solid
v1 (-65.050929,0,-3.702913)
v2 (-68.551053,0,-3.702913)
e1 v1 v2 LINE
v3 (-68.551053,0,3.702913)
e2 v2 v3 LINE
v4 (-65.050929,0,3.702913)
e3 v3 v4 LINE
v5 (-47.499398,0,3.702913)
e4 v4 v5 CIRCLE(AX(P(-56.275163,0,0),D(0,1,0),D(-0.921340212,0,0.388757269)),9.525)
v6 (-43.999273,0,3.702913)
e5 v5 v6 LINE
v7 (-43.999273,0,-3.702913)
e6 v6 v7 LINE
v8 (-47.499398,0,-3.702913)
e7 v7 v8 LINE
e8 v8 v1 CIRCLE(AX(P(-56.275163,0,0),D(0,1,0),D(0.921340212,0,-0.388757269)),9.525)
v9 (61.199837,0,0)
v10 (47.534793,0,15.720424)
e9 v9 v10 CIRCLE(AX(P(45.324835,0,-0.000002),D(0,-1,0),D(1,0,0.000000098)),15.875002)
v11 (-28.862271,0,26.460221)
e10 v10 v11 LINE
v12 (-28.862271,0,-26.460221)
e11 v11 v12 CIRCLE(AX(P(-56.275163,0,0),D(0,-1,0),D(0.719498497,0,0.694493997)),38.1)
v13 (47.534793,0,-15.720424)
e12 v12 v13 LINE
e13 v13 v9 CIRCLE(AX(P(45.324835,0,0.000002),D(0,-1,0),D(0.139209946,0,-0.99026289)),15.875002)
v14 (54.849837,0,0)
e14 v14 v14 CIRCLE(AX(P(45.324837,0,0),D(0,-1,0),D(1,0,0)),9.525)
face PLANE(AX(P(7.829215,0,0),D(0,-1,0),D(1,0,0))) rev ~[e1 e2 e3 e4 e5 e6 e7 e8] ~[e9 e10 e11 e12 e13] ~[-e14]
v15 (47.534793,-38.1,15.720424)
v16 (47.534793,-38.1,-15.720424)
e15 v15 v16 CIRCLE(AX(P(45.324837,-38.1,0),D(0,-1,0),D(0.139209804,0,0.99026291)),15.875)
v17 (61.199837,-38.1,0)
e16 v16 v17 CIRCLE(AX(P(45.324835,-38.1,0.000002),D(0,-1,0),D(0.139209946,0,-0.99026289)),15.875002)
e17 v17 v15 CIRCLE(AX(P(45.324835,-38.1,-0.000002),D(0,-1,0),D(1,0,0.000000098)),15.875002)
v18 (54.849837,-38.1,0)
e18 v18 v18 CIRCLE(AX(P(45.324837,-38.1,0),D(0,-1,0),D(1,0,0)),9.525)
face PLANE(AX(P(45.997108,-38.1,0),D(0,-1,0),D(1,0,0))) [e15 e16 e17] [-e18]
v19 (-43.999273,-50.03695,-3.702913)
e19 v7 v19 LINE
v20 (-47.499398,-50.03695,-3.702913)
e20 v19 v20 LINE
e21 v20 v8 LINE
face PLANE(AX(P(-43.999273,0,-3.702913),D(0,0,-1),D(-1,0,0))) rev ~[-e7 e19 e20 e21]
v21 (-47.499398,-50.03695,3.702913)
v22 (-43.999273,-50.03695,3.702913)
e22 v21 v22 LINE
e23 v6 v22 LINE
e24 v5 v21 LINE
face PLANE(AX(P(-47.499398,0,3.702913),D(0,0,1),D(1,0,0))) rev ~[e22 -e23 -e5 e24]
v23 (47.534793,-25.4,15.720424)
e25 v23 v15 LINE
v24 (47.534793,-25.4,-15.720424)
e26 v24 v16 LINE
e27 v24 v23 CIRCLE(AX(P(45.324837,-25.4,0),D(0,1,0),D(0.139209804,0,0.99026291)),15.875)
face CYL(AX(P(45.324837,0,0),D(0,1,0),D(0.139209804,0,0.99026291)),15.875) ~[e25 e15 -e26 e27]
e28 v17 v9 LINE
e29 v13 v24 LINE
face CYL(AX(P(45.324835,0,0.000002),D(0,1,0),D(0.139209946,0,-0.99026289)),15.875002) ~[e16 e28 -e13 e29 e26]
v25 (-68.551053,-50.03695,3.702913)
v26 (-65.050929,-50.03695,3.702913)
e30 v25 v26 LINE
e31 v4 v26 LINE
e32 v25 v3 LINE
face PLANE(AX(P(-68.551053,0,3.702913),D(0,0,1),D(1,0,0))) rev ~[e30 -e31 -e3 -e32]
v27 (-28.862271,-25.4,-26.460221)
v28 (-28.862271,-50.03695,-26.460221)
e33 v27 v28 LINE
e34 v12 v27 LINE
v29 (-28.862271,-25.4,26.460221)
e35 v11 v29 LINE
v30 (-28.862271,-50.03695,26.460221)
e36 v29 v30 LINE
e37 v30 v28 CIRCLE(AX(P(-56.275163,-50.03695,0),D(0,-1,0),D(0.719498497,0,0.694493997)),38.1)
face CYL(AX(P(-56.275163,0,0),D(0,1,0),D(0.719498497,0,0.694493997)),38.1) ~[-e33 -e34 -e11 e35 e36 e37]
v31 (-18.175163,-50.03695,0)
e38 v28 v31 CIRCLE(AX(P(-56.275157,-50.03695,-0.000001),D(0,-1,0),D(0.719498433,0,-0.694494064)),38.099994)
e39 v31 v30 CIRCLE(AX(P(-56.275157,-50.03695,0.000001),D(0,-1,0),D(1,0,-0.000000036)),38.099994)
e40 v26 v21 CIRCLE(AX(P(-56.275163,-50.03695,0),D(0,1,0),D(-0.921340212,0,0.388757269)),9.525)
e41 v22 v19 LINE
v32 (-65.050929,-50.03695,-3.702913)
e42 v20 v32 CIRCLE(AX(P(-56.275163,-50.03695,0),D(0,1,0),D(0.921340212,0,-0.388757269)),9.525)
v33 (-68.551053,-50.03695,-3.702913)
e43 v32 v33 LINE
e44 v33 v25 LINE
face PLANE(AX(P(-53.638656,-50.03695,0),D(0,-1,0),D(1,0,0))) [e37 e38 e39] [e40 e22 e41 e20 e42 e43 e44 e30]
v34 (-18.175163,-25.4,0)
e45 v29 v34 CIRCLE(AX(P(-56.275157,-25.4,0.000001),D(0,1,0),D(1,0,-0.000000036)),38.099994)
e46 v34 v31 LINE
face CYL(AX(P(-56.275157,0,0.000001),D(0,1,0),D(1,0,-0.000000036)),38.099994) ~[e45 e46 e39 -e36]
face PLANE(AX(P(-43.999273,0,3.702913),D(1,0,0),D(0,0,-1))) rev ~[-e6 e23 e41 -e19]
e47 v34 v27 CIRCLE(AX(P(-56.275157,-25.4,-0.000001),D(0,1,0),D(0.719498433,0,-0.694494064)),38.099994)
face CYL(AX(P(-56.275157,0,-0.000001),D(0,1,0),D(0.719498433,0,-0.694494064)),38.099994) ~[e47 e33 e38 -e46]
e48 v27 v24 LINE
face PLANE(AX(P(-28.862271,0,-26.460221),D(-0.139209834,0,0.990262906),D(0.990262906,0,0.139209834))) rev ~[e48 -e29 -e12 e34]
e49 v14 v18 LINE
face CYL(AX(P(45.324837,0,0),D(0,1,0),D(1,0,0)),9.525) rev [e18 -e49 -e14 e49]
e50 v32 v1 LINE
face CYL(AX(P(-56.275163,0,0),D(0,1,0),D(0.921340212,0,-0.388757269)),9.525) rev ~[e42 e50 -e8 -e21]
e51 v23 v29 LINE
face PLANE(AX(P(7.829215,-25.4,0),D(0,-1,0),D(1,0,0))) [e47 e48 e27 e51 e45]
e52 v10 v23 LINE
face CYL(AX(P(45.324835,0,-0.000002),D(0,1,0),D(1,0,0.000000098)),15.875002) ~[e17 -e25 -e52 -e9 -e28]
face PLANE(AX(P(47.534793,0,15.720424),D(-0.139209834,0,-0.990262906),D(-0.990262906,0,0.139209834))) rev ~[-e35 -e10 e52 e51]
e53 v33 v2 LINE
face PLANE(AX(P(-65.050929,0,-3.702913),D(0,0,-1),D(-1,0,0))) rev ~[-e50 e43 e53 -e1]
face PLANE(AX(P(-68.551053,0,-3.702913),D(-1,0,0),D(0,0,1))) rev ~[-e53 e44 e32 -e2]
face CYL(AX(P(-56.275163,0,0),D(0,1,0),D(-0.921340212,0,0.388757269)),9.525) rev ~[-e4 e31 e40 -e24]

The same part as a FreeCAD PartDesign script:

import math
import FreeCAD as App
import Part
import Sketcher
from FreeCAD import Vector
Q = App.Units.Quantity

doc = App.newDocument("Part")
params = doc.addObject("Spreadsheet::Sheet", "Params")
for row, (alias, value) in enumerate([
    ("sketch1_radius", "1.5 in"),
    ("sketch1_diameter", "0.75 in"),
    ("sketch1_radius2", "0.6250001 in"),
    ("pad1_length", "1 in"),
    ("sketch2_radius", "1.5 in"),
    ("sketch2_radius2", "0.375 in"),
    ("pad2_length", "50.03695 mm"),
    ("sketch3_diameter", "0.75 in"),
    ("sketch3_radius", "0.6250001 in"),
    ("pad3_length", "1.5 in"),
], start=1):
    params.set(f"A{row}", alias)
    params.set(f"B{row}", "=" + value)
    params.setAlias(f"B{row}", alias)

body = doc.addObject("PartDesign::Body", "Body")

# Sketch on XZ plane
sketch1 = body.newObject("Sketcher::SketchObject", "Sketch")
sketch1.AttachmentSupport = (doc.getObject("XZ_Plane"), [""])
sketch1.MapMode = "FlatFace"
sketch1.addGeometry([
    Part.LineSegment(Vector(47.5, 15.7, 0), Vector(-28.9, 26.5, 0)),  # 0
    Part.ArcOfCircle(Part.Circle(Vector(-56.3, 0, 0), Vector(0, 0, 1), 38.1), math.radians(44), math.radians(316)),  # 1
    Part.LineSegment(Vector(-28.9, -26.5, 0), Vector(47.5, -15.7, 0)),  # 2
    Part.ArcOfCircle(Part.Circle(Vector(45.3, 0, 0), Vector(0, 0, 1), 15.9), math.radians(-82), math.radians(0)),  # 3
    Part.ArcOfCircle(Part.Circle(Vector(45.3, 0, 0), Vector(0, 0, 1), 15.9), math.radians(0), math.radians(82)),  # 4
    Part.LineSegment(Vector(-68.6, 3.7, 0), Vector(-65.1, 3.7, 0)),  # 5
    Part.ArcOfCircle(Part.Circle(Vector(-56.3, 0, 0), Vector(0, 0, 1), 9.5), math.radians(23), math.radians(157)),  # 6
    Part.LineSegment(Vector(-47.5, 3.7, 0), Vector(-44, 3.7, 0)),  # 7
    Part.LineSegment(Vector(-44, 3.7, 0), Vector(-44, -3.7, 0)),  # 8
    Part.LineSegment(Vector(-44, -3.7, 0), Vector(-47.5, -3.7, 0)),  # 9
    Part.ArcOfCircle(Part.Circle(Vector(-56.3, 0, 0), Vector(0, 0, 1), 9.5), math.radians(-157), math.radians(-23)),  # 10
    Part.LineSegment(Vector(-65.1, -3.7, 0), Vector(-68.6, -3.7, 0)),  # 11
    Part.LineSegment(Vector(-68.6, -3.7, 0), Vector(-68.6, 3.7, 0)),  # 12
    Part.Circle(Vector(45.3, 0, 0), Vector(0, 0, 1), 9.5),  # 13
], False)
sketch1.addConstraint([
    Sketcher.Constraint("Coincident", 0, 2, 1, 1),
    Sketcher.Constraint("Coincident", 1, 2, 2, 1),
    Sketcher.Constraint("Tangent", 2, 2, 3, 1),
    Sketcher.Constraint("Tangent", 3, 2, 4, 1),
    Sketcher.Constraint("Tangent", 4, 2, 0, 1),
    Sketcher.Constraint("Coincident", 5, 2, 6, 2),
    Sketcher.Constraint("Coincident", 6, 1, 7, 1),
    Sketcher.Constraint("Coincident", 7, 2, 8, 1),
    Sketcher.Constraint("Coincident", 8, 2, 9, 1),
    Sketcher.Constraint("Coincident", 9, 2, 10, 2),
    Sketcher.Constraint("Coincident", 10, 1, 11, 1),
    Sketcher.Constraint("Coincident", 11, 2, 12, 1),
    Sketcher.Constraint("Coincident", 12, 2, 5, 1),
    Sketcher.Constraint("Horizontal", 5),
    Sketcher.Constraint("Horizontal", 7),
    Sketcher.Constraint("Vertical", 8),
    Sketcher.Constraint("Horizontal", 9),
    Sketcher.Constraint("Horizontal", 11),
    Sketcher.Constraint("Vertical", 12),
    Sketcher.Constraint("Coincident", 6, 3, 1, 3),
    Sketcher.Constraint("Coincident", 10, 3, 1, 3),
    Sketcher.Constraint("Coincident", 13, 3, 3, 3),
    Sketcher.Constraint("Equal", 3, 4),
    Sketcher.Constraint("Equal", 6, 10),
    Sketcher.Constraint("Equal", 10, 13),
    Sketcher.Constraint("Symmetric", 0, 2, 1, 2, -1),
    Sketcher.Constraint("PointOnObject", 3, 3, -1),
    Sketcher.Constraint("PointOnObject", 3, 2, -1),
    Sketcher.Constraint("Horizontal", 5, 2, 6, 1),
    Sketcher.Constraint("Horizontal", 9, 2, 10, 1),
    Sketcher.Constraint("Vertical", 6, 1, 9, 2),
    Sketcher.Constraint("Equal", 5, 7),
    Sketcher.Constraint("Radius", 1, Q("1.5 in")),
    Sketcher.Constraint("Diameter", 13, Q("0.75 in")),
    Sketcher.Constraint("Radius", 3, Q("0.6250001 in")),
    Sketcher.Constraint("DistanceX", 1, 3, 3, 3, Q("3.9999999 in")),
    Sketcher.Constraint("DistanceX", 5, 1, 5, 2, Q("0.1378002 in")),
    Sketcher.Constraint("DistanceY", 8, 2, 8, 1, Q("7.405826 mm")),
    Sketcher.Constraint("DistanceX", 0, 2, -1, 1, Q("28.862271 mm")),
    Sketcher.Constraint("DistanceY", -1, 1, 0, 2, Q("26.460221 mm")),
])
sketch1.setExpression("Constraints[32]", "Params.sketch1_radius")
sketch1.setExpression("Constraints[33]", "Params.sketch1_diameter")
sketch1.setExpression("Constraints[34]", "Params.sketch1_radius2")
pad1 = body.newObject("PartDesign::Pad", "Pad")
pad1.Profile = sketch1
pad1.setExpression("Length", "Params.pad1_length")

# Sketch on XZ plane
sketch2 = body.newObject("Sketcher::SketchObject", "Sketch001")
sketch2.AttachmentSupport = (doc.getObject("XZ_Plane"), [""])
sketch2.MapMode = "FlatFace"
sketch2.addGeometry([
    Part.ArcOfCircle(Part.Circle(Vector(-56.3, 0, 0), Vector(0, 0, 1), 38.1), math.radians(-44), math.radians(0)),  # 0
    Part.ArcOfCircle(Part.Circle(Vector(-56.3, 0, 0), Vector(0, 0, 1), 38.1), math.radians(0), math.radians(44)),  # 1
    Part.ArcOfCircle(Part.Circle(Vector(-56.3, 0, 0), Vector(0, 0, 1), 38.1), math.radians(44), math.radians(316)),  # 2
    Part.LineSegment(Vector(-68.6, 3.7, 0), Vector(-65.1, 3.7, 0)),  # 3
    Part.ArcOfCircle(Part.Circle(Vector(-56.3, 0, 0), Vector(0, 0, 1), 9.5), math.radians(23), math.radians(157)),  # 4
    Part.LineSegment(Vector(-47.5, 3.7, 0), Vector(-44, 3.7, 0)),  # 5
    Part.LineSegment(Vector(-44, 3.7, 0), Vector(-44, -3.7, 0)),  # 6
    Part.LineSegment(Vector(-44, -3.7, 0), Vector(-47.5, -3.7, 0)),  # 7
    Part.ArcOfCircle(Part.Circle(Vector(-56.3, 0, 0), Vector(0, 0, 1), 9.5), math.radians(-157), math.radians(-23)),  # 8
    Part.LineSegment(Vector(-65.1, -3.7, 0), Vector(-68.6, -3.7, 0)),  # 9
    Part.LineSegment(Vector(-68.6, -3.7, 0), Vector(-68.6, 3.7, 0)),  # 10
], False)
sketch2.addConstraint([
    Sketcher.Constraint("Tangent", 0, 2, 1, 1),
    Sketcher.Constraint("Tangent", 1, 2, 2, 1),
    Sketcher.Constraint("Tangent", 2, 2, 0, 1),
    Sketcher.Constraint("Coincident", 3, 2, 4, 2),
    Sketcher.Constraint("Coincident", 4, 1, 5, 1),
    Sketcher.Constraint("Coincident", 5, 2, 6, 1),
    Sketcher.Constraint("Coincident", 6, 2, 7, 1),
    Sketcher.Constraint("Coincident", 7, 2, 8, 2),
    Sketcher.Constraint("Coincident", 8, 1, 9, 1),
    Sketcher.Constraint("Coincident", 9, 2, 10, 1),
    Sketcher.Constraint("Coincident", 10, 2, 3, 1),
    Sketcher.Constraint("Horizontal", 3),
    Sketcher.Constraint("Horizontal", 5),
    Sketcher.Constraint("Vertical", 6),
    Sketcher.Constraint("Horizontal", 7),
    Sketcher.Constraint("Horizontal", 9),
    Sketcher.Constraint("Vertical", 10),
    Sketcher.Constraint("Coincident", 4, 3, 0, 3),
    Sketcher.Constraint("Coincident", 8, 3, 0, 3),
    Sketcher.Constraint("Equal", 4, 8),
    Sketcher.Constraint("Symmetric", 1, 2, 2, 2, -1),
    Sketcher.Constraint("PointOnObject", 0, 2, -1),
    Sketcher.Constraint("Horizontal", 3, 2, 4, 1),
    Sketcher.Constraint("Horizontal", 7, 2, 8, 1),
    Sketcher.Constraint("Vertical", 4, 1, 7, 2),
    Sketcher.Constraint("Equal", 3, 5),
    Sketcher.Constraint("Radius", 2, Q("1.5 in")),
    Sketcher.Constraint("Radius", 4, Q("0.375 in")),
    Sketcher.Constraint("DistanceX", 3, 1, 3, 2, Q("0.1378002 in")),
    Sketcher.Constraint("DistanceY", 6, 2, 6, 1, Q("7.405826 mm")),
    Sketcher.Constraint("DistanceX", 1, 2, -1, 1, Q("28.862271 mm")),
    Sketcher.Constraint("DistanceY", -1, 1, 1, 2, Q("26.460221 mm")),
])
sketch2.setExpression("Constraints[26]", "Params.sketch2_radius")
sketch2.setExpression("Constraints[27]", "Params.sketch2_radius2")
pad2 = body.newObject("PartDesign::Pad", "Pad001")
pad2.Profile = sketch2
pad2.setExpression("Length", "Params.pad2_length")

# Sketch on XZ plane
sketch3 = body.newObject("Sketcher::SketchObject", "Sketch002")
sketch3.AttachmentSupport = (doc.getObject("XZ_Plane"), [""])
sketch3.MapMode = "FlatFace"
sketch3.addGeometry([
    Part.ArcOfCircle(Part.Circle(Vector(45, 0, 0), Vector(0, 0, 1), 16), math.radians(0), math.radians(82)),
    Part.ArcOfCircle(Part.Circle(Vector(45, 0, 0), Vector(0, 0, 1), 16), math.radians(82), math.radians(278)),
    Part.ArcOfCircle(Part.Circle(Vector(45, 0, 0), Vector(0, 0, 1), 16), math.radians(-82), math.radians(0)),
    Part.Circle(Vector(45, 0, 0), Vector(0, 0, 1), 10),
], False)
sketch3.addConstraint([
    Sketcher.Constraint("Tangent", 0, 2, 1, 1),
    Sketcher.Constraint("Tangent", 1, 2, 2, 1),
    Sketcher.Constraint("Tangent", 2, 2, 0, 1),
    Sketcher.Constraint("Coincident", 3, 3, 0, 3),
    Sketcher.Constraint("Symmetric", 0, 2, 1, 2, -1),
    Sketcher.Constraint("PointOnObject", 2, 2, -1),
    Sketcher.Constraint("Diameter", 3, Q("0.75 in")),
    Sketcher.Constraint("Radius", 0, Q("0.6250001 in")),
    Sketcher.Constraint("DistanceX", 2, 3, 0, 2, Q("2.209958 mm")),
    Sketcher.Constraint("DistanceX", -1, 1, 0, 3, Q("45.324835 mm")),
])
sketch3.setExpression("Constraints[6]", "Params.sketch3_diameter")
sketch3.setExpression("Constraints[7]", "Params.sketch3_radius")
pad3 = body.newObject("PartDesign::Pad", "Pad002")
pad3.Profile = sketch3
pad3.setExpression("Length", "Params.pad3_length")

doc.recompute()
